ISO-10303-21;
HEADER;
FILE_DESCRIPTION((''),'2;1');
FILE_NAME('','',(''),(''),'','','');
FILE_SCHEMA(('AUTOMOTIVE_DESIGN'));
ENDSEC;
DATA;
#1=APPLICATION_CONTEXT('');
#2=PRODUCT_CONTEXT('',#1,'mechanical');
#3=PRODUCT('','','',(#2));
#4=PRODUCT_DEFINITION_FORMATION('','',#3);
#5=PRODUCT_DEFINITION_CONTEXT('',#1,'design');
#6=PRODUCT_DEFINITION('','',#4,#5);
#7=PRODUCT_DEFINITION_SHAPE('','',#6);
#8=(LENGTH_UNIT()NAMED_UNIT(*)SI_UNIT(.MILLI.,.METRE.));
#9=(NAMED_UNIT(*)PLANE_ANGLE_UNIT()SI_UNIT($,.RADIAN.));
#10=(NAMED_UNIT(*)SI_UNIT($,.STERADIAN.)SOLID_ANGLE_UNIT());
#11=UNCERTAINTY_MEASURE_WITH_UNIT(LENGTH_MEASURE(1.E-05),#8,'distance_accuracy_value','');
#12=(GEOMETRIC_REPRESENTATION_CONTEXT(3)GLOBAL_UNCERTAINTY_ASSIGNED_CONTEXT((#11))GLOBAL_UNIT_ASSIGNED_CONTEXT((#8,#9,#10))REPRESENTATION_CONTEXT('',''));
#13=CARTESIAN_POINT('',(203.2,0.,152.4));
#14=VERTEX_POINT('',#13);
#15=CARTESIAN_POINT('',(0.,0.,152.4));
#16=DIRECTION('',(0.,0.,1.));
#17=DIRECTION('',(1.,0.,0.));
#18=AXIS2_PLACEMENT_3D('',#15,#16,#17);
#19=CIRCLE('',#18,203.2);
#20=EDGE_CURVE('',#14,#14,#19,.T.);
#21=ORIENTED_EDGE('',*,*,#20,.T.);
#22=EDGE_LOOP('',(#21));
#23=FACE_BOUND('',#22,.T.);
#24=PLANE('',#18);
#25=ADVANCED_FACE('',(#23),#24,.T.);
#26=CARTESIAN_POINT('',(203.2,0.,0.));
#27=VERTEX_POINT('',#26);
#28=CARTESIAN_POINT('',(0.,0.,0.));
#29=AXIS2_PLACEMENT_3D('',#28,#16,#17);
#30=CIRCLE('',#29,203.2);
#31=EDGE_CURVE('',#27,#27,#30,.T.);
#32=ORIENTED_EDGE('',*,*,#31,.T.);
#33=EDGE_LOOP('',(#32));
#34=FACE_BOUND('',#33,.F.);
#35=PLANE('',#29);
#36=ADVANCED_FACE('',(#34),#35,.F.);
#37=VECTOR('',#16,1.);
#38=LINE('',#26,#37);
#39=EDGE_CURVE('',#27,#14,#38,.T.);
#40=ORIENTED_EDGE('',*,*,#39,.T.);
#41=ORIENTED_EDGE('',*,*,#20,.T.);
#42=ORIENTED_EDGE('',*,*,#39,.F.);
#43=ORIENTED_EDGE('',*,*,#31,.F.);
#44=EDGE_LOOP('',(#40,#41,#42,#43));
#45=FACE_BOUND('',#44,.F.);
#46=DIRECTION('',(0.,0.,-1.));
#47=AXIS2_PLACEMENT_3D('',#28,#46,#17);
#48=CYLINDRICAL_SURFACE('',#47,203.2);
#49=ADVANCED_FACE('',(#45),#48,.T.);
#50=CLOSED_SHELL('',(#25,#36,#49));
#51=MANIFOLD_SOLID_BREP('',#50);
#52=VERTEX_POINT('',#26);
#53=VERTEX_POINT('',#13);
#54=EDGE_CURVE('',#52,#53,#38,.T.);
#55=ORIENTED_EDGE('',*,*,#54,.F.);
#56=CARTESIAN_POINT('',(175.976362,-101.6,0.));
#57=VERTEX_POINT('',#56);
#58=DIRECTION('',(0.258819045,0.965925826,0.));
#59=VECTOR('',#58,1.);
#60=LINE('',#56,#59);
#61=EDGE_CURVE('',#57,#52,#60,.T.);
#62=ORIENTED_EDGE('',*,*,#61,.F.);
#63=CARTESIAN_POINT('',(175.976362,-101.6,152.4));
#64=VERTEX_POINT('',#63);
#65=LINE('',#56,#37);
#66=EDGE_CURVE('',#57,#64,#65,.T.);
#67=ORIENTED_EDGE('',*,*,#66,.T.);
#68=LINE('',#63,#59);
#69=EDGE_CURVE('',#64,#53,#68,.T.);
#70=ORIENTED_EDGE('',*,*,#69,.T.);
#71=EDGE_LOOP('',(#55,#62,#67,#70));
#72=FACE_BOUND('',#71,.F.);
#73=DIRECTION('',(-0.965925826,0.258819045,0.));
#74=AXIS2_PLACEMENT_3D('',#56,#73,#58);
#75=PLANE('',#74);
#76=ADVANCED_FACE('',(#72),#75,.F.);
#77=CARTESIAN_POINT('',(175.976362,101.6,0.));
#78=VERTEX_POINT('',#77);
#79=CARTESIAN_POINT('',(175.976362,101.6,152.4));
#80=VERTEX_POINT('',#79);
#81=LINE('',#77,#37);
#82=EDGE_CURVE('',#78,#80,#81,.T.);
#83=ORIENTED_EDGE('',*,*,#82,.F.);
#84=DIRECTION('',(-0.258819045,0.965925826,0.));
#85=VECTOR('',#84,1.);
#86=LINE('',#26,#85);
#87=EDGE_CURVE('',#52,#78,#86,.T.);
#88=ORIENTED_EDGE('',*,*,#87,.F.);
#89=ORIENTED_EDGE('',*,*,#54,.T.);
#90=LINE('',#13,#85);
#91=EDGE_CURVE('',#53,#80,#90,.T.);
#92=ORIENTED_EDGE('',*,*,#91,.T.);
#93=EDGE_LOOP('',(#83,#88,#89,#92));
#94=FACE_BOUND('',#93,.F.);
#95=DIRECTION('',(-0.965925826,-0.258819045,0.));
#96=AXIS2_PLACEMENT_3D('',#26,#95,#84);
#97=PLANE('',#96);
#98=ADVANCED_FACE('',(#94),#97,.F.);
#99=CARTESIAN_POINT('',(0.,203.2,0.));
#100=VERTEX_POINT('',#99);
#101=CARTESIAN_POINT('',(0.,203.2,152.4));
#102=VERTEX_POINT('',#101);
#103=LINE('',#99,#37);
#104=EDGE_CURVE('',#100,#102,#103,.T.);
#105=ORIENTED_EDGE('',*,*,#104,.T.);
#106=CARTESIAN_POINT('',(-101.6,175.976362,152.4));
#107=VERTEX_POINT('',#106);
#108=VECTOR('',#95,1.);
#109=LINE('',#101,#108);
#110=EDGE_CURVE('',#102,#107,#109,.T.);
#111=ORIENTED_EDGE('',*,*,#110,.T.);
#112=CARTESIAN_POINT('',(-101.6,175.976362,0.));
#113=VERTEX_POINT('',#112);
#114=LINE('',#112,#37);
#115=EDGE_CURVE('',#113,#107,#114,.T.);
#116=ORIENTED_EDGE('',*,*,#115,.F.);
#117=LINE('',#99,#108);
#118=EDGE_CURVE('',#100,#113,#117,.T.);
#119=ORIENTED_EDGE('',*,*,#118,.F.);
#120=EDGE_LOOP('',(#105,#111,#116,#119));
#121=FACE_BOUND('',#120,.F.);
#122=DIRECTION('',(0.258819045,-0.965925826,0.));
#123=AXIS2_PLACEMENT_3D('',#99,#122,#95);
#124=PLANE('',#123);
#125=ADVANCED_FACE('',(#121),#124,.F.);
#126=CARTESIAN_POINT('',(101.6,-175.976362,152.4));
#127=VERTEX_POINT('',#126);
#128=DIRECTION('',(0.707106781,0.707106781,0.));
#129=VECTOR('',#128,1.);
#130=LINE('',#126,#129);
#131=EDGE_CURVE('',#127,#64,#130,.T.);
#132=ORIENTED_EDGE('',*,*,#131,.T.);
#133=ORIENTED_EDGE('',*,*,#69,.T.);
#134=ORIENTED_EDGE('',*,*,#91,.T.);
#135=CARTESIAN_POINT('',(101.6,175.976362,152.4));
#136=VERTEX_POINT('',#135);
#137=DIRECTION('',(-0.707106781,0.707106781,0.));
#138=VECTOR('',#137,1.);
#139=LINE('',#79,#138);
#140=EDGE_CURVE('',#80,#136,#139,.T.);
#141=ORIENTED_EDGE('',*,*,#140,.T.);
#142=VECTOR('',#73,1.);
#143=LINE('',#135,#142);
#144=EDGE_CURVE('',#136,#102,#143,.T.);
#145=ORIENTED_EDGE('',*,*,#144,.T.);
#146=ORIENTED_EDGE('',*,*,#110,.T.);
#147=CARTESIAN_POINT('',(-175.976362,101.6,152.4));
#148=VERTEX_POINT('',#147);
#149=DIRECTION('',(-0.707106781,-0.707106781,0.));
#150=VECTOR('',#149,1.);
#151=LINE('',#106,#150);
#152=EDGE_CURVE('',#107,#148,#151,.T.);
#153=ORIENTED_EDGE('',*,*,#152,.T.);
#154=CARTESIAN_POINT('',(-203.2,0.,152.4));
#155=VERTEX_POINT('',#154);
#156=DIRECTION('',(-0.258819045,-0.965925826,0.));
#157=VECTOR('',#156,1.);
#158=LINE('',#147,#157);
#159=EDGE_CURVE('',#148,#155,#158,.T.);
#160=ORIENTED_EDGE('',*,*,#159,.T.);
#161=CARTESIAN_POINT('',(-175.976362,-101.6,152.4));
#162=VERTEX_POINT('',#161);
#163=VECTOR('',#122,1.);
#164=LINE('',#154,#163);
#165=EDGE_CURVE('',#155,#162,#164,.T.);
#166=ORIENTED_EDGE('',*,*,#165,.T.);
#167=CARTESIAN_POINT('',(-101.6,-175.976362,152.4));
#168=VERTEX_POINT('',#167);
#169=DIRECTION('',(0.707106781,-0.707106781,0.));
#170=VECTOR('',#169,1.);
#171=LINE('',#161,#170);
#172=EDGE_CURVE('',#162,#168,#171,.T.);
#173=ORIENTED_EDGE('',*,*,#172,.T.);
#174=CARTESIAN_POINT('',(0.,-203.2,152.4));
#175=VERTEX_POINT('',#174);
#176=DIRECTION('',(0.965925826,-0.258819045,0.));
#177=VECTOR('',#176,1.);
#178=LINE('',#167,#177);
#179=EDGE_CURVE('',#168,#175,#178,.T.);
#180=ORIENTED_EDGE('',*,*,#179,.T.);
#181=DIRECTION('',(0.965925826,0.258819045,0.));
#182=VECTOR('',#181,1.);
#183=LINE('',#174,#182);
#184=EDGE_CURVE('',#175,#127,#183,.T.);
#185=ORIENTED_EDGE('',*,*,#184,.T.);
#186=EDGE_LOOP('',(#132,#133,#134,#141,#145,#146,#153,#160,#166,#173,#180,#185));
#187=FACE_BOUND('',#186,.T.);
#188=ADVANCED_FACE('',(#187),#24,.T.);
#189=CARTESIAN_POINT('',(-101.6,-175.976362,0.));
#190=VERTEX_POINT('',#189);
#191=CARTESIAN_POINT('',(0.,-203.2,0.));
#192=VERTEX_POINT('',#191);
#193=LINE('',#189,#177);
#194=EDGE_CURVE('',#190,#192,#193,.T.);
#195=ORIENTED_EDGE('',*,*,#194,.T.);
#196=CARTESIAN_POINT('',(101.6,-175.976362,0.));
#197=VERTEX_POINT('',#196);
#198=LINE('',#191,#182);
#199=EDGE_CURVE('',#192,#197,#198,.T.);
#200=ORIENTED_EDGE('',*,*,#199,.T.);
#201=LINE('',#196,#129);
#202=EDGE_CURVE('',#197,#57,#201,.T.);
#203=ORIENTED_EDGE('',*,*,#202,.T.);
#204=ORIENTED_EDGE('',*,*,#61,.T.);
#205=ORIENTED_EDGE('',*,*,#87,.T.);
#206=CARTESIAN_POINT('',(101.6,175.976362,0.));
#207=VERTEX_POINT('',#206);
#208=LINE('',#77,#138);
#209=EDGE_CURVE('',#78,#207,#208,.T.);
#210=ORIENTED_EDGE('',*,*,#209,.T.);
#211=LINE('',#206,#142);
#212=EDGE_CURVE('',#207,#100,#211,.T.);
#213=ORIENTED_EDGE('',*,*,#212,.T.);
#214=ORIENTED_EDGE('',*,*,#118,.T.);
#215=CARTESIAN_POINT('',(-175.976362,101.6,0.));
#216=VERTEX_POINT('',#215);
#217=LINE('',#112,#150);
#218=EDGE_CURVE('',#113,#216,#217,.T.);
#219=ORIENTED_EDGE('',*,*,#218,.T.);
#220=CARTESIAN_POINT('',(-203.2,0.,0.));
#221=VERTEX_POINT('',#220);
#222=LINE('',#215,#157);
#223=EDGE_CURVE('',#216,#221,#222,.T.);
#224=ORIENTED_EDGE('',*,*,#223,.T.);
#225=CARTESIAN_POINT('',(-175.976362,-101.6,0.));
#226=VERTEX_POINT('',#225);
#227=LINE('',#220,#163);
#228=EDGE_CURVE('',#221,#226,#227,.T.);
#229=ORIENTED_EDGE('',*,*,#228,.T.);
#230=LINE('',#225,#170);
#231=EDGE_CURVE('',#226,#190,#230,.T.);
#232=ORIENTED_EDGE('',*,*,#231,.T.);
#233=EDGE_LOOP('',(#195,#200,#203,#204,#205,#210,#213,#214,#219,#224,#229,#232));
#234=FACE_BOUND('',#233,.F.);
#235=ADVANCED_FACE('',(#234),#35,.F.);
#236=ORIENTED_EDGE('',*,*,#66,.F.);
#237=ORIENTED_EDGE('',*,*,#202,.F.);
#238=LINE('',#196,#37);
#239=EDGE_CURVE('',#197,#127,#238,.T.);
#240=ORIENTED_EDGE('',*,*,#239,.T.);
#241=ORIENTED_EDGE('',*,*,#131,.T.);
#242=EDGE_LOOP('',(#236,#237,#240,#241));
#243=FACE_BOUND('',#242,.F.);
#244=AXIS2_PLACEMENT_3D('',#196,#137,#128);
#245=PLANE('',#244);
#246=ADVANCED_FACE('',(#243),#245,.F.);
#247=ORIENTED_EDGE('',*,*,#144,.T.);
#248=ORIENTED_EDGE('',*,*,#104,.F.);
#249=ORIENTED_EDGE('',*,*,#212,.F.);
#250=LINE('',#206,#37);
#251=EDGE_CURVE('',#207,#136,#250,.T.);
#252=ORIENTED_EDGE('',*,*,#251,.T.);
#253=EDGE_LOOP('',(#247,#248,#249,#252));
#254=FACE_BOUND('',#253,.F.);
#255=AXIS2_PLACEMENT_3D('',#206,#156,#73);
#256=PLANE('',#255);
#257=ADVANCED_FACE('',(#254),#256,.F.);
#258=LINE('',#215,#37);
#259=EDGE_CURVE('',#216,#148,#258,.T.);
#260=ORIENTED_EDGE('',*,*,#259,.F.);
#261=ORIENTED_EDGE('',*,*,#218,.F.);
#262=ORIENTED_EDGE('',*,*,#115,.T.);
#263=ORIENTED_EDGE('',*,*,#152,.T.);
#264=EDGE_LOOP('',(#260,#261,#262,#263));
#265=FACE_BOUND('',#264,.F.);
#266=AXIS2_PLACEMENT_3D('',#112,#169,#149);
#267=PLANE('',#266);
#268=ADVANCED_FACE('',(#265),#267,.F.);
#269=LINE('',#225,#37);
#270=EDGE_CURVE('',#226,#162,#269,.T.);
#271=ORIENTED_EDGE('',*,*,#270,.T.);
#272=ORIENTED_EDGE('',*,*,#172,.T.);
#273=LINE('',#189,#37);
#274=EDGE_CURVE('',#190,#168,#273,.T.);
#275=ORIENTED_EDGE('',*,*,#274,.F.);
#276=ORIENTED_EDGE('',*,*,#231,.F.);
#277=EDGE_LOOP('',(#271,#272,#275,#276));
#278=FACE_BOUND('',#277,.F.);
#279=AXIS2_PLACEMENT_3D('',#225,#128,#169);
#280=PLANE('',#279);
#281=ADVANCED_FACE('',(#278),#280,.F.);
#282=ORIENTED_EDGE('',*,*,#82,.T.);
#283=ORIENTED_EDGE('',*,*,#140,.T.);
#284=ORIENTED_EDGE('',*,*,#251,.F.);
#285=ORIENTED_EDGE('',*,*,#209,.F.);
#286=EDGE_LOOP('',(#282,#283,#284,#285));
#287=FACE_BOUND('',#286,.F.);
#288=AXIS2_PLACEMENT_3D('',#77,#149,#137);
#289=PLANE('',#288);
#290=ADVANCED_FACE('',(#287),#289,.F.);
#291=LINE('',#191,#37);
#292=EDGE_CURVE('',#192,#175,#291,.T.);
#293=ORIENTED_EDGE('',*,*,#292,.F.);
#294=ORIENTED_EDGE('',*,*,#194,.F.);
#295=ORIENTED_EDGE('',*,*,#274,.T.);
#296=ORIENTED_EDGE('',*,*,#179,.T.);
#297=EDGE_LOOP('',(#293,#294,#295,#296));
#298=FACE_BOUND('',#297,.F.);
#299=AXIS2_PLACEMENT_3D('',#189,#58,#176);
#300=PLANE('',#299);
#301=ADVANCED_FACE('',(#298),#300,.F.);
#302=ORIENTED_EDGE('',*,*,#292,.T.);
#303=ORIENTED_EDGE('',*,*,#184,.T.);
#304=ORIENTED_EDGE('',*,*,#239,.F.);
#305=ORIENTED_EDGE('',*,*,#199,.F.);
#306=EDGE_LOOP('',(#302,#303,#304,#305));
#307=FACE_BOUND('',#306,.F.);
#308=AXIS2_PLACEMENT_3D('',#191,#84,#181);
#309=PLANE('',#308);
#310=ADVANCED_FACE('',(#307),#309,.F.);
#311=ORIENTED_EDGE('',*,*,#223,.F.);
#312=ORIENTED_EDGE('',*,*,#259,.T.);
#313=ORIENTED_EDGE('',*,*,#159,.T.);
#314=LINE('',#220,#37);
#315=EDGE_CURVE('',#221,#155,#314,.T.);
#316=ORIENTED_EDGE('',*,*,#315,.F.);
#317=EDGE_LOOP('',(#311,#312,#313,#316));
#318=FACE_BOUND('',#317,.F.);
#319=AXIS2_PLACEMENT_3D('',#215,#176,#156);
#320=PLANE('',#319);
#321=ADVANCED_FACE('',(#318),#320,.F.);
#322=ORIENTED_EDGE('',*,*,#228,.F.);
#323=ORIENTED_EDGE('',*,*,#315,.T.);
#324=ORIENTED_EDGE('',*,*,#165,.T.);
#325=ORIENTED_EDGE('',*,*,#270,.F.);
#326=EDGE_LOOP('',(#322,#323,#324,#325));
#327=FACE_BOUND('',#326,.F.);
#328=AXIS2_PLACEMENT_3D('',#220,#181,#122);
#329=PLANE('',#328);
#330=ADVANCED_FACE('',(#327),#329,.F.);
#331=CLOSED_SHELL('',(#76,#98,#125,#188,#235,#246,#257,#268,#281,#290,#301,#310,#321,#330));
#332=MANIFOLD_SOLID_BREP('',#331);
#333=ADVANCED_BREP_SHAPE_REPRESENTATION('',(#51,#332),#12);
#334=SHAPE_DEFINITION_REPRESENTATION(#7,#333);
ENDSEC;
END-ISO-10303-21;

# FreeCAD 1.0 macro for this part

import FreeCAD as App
import Part
import Sketcher

V = App.Vector
Q = App.Units.Quantity


def add_polygon(sketch, points):
    """Adds a closed chain of lines whose ends are joined by coincident constraints."""
    first, n = sketch.GeometryCount, len(points)
    for a, b in zip(points, points[1:] + points[:1]):
        sketch.addGeometry(Part.LineSegment(App.Vector(*a, 0), App.Vector(*b, 0)), False)
    for i in range(n):
        sketch.addConstraint(Sketcher.Constraint("Coincident", first + i, 2, first + (i + 1) % n, 1))

doc = App.newDocument("Part")
body = doc.addObject("PartDesign::Body", "Body")

# Sketch on XY plane
sketch1 = body.newObject("Sketcher::SketchObject", "Sketch")
sketch1.AttachmentSupport = (doc.getObject("XY_Plane"), [""])
sketch1.MapMode = "FlatFace"
add_polygon(sketch1, [(176, -102), (203, 0), (176, 102), (102, 176), (0, 203), (-102, 176), (-176, 102), (-203, 0), (-176, -102), (-102, -176), (0, -203), (102, -176)])  # lines 0-11
sketch1.addConstraint(Sketcher.Constraint("Symmetric", 0, 2, 6, 2, -1, 1))
sketch1.addConstraint(Sketcher.Constraint("Symmetric", 1, 2, 7, 2, -1, 1))
sketch1.addConstraint(Sketcher.Constraint("Symmetric", 2, 2, 8, 2, -1, 1))
sketch1.addConstraint(Sketcher.Constraint("Symmetric", 3, 2, 9, 2, -1, 1))
sketch1.addConstraint(Sketcher.Constraint("Symmetric", 4, 2, 10, 2, -1, 1))
sketch1.addConstraint(Sketcher.Constraint("Symmetric", 5, 2, 11, 2, -1, 1))
sketch1.addConstraint(Sketcher.Constraint("Symmetric", 2, 2, 4, 2, -2))
sketch1.addConstraint(Sketcher.Constraint("Symmetric", 1, 2, 5, 2, -2))
sketch1.addConstraint(Sketcher.Constraint("PointOnObject", 0, 2, -1))
sketch1.addConstraint(Sketcher.Constraint("PointOnObject", 3, 2, -2))
sketch1.addConstraint(Sketcher.Constraint("Perpendicular", 0, 3))
sketch1.addConstraint(Sketcher.Constraint("Perpendicular", 2, 5))
sketch1.addConstraint(Sketcher.Constraint("Equal", 1, 2))
sketch1.addConstraint(Sketcher.Constraint("Equal", 2, 3))
sketch1.addConstraint(Sketcher.Constraint("DistanceX", -1, 1, 0, 2, Q("8 in")))
sketch1.addConstraint(Sketcher.Constraint("DistanceY", -1, 1, 1, 2, Q("4 in")))
pad1 = body.newObject("PartDesign::Pad", "Pad")
pad1.Profile = sketch1
pad1.Length = Q("6 in")
body2 = doc.addObject("PartDesign::Body", "Body001")

# Sketch on XY plane
sketch2 = body2.newObject("Sketcher::SketchObject", "Sketch001")
sketch2.AttachmentSupport = (doc.getObject("XY_Plane001"), [""])
sketch2.MapMode = "FlatFace"
sketch2.addGeometry(Part.Circle(V(0, 0, 0), V(0, 0, 1), 203), False)
sketch2.addConstraint(Sketcher.Constraint("Coincident", 0, 3, -1, 1))
sketch2.addConstraint(Sketcher.Constraint("Diameter", 0, Q("16 in")))
pad2 = body2.newObject("PartDesign::Pad", "Pad001")
pad2.Profile = sketch2
pad2.Length = Q("6 in")

doc.recompute()
